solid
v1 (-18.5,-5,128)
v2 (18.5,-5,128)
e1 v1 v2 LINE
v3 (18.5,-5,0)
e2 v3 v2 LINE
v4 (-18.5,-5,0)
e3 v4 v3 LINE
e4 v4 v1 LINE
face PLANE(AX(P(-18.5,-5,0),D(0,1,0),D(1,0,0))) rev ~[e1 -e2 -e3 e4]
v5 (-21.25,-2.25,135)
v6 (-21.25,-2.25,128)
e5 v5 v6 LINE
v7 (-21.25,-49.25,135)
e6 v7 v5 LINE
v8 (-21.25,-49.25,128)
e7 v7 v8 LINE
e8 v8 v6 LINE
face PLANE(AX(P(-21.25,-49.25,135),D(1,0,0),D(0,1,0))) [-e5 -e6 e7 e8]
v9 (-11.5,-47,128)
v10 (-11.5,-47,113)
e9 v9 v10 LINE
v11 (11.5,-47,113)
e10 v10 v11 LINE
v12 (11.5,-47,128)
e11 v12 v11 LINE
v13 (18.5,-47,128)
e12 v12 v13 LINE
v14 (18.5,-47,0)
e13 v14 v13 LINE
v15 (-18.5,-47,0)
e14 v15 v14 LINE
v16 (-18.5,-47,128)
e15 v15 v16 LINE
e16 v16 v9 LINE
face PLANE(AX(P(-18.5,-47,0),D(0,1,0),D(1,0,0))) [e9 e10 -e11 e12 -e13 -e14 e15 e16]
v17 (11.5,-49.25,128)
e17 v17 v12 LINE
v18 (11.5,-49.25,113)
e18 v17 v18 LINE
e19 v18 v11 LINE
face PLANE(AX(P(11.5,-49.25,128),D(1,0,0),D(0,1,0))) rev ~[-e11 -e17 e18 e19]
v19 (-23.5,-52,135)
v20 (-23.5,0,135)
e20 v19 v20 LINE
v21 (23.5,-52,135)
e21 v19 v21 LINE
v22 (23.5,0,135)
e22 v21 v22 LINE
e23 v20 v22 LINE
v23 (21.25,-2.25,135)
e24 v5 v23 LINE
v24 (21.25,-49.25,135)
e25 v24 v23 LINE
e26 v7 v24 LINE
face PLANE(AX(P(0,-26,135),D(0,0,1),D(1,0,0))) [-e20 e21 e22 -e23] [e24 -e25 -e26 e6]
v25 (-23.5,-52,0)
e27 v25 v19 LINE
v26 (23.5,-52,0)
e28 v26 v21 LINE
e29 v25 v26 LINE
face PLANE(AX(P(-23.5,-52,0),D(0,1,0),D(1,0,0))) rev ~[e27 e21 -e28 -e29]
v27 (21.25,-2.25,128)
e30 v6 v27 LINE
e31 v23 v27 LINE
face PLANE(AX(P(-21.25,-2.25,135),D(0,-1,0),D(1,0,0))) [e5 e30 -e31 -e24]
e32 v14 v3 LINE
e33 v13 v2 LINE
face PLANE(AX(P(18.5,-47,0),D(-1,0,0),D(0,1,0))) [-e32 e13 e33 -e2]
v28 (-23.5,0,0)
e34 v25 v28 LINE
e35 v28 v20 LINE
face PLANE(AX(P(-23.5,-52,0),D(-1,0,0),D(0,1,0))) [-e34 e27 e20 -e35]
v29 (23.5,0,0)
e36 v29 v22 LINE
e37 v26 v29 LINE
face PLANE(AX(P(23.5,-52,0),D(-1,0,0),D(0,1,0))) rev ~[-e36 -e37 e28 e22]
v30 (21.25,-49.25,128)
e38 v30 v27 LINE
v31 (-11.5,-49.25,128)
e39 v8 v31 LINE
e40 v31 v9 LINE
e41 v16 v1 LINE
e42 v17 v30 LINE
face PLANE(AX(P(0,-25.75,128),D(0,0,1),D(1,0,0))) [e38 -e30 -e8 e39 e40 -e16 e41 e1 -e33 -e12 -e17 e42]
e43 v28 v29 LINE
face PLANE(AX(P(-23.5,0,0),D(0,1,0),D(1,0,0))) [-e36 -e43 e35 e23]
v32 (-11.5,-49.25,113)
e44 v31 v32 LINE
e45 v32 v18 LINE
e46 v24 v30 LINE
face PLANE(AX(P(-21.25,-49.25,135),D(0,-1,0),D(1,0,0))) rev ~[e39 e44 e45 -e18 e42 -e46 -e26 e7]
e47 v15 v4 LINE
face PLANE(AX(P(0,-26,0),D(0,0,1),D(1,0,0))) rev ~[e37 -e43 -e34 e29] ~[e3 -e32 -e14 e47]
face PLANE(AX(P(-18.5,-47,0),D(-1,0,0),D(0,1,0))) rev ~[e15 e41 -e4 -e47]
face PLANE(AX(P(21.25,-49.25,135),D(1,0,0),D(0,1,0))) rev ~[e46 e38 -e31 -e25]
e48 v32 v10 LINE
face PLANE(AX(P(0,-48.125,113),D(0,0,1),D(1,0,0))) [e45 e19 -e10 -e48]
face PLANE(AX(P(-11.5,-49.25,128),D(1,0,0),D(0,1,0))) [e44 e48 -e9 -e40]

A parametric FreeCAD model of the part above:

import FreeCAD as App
import Part
import Sketcher
from FreeCAD import Vector
Q = App.Units.Quantity


def add_polygon(sketch, points):
    """Adds a closed chain of lines whose ends are joined by coincident constraints."""
    first, n = sketch.GeometryCount, len(points)
    for a, b in zip(points, points[1:] + points[:1]):
        sketch.addGeometry(Part.LineSegment(App.Vector(*a, 0), App.Vector(*b, 0)), False)
    for i in range(n):
        sketch.addConstraint(Sketcher.Constraint("Coincident", first + i, 2, first + (i + 1) % n, 1))

doc = App.newDocument("Part")
body = doc.addObject("PartDesign::Body", "Body")

# Sketch on XY plane
sketch1 = body.newObject("Sketcher::SketchObject", "Sketch")
sketch1.AttachmentSupport = (doc.getObject("XY_Plane"), [""])
sketch1.MapMode = "FlatFace"
add_polygon(sketch1, [(-24, 0), (-24, -52), (24, -52), (24, 0)])  # lines 0-3
add_polygon(sketch1, [(18, -47), (-18, -47), (-18, -5), (18, -5)])  # lines 4-7
sketch1.addConstraint(Sketcher.Constraint("Vertical", 0))
sketch1.addConstraint(Sketcher.Constraint("Horizontal", 1))
sketch1.addConstraint(Sketcher.Constraint("Vertical", 2))
sketch1.addConstraint(Sketcher.Constraint("Horizontal", 3))
sketch1.addConstraint(Sketcher.Constraint("Horizontal", 4))
sketch1.addConstraint(Sketcher.Constraint("Vertical", 5))
sketch1.addConstraint(Sketcher.Constraint("Horizontal", 6))
sketch1.addConstraint(Sketcher.Constraint("Vertical", 7))
sketch1.addConstraint(Sketcher.Constraint("Symmetric", 2, 2, 3, 2, -1, 1))
sketch1.addConstraint(Sketcher.Constraint("DistanceX", 1, 1, 1, 2, Q("47 mm")))
sketch1.addConstraint(Sketcher.Constraint("DistanceX", 4, 2, 4, 1, Q("37 mm")))
sketch1.addConstraint(Sketcher.Constraint("DistanceY", 0, 2, 0, 1, Q("52 mm")))
sketch1.addConstraint(Sketcher.Constraint("DistanceY", 5, 1, 5, 2, Q("42 mm")))
sketch1.addConstraint(Sketcher.Constraint("DistanceY", 4, 2, -1, 1, Q("47 mm")))
sketch1.addConstraint(Sketcher.Constraint("DistanceX", 0, 2, 4, 2, Q("5 mm")))
pad1 = body.newObject("PartDesign::Pad", "Pad")
pad1.Profile = sketch1
pad1.Length = 135

# Sketch on XY plane
sketch2 = body.newObject("Sketcher::SketchObject", "Sketch001")
sketch2.AttachmentSupport = (doc.getObject("XY_Plane"), [""])
sketch2.MapMode = "FlatFace"
sketch2.AttachmentOffset = App.Placement(Vector(0, 0, 135), App.Rotation())
add_polygon(sketch2, [(-21, -2), (-21, -49), (21, -49), (21, -2)])  # lines 0-3
sketch2.addConstraint(Sketcher.Constraint("Vertical", 0))
sketch2.addConstraint(Sketcher.Constraint("Horizontal", 1))
sketch2.addConstraint(Sketcher.Constraint("Vertical", 2))
sketch2.addConstraint(Sketcher.Constraint("Horizontal", 3))
sketch2.addConstraint(Sketcher.Constraint("DistanceY", 0, 2, 0, 1, Q("47 mm")))
sketch2.addConstraint(Sketcher.Constraint("DistanceX", 1, 1, 1, 2, Q("42.5 mm")))
sketch2.addConstraint(Sketcher.Constraint("DistanceX", 0, 2, -1, 1, Q("21.25 mm")))
sketch2.addConstraint(Sketcher.Constraint("DistanceY", 0, 2, -1, 1, Q("49.25 mm")))
pocket1 = body.newObject("PartDesign::Pocket", "Pocket")
pocket1.Profile = sketch2
pocket1.Length = 7

# Sketch on XY plane
sketch3 = body.newObject("Sketcher::SketchObject", "Sketch002")
sketch3.AttachmentSupport = (doc.getObject("XY_Plane"), [""])
sketch3.MapMode = "FlatFace"
sketch3.AttachmentOffset = App.Placement(Vector(0, 0, 128), App.Rotation())
add_polygon(sketch3, [(-11.5, -47), (-11.5, -49.2), (11.5, -49.2), (11.5, -47)])  # lines 0-3
sketch3.addConstraint(Sketcher.Constraint("Vertical", 0))
sketch3.addConstraint(Sketcher.Constraint("Horizontal", 1))
sketch3.addConstraint(Sketcher.Constraint("Vertical", 2))
sketch3.addConstraint(Sketcher.Constraint("Horizontal", 3))
sketch3.addConstraint(Sketcher.Constraint("DistanceX", 1, 1, 1, 2, Q("23 mm")))
sketch3.addConstraint(Sketcher.Constraint("DistanceY", 2, 2, -1, 1, Q("47 mm")))
sketch3.addConstraint(Sketcher.Constraint("DistanceY", 0, 2, 0, 1, Q("2.25 mm")))
sketch3.addConstraint(Sketcher.Constraint("DistanceX", 0, 2, -1, 1, Q("11.5 mm")))
pocket2 = body.newObject("PartDesign::Pocket", "Pocket001")
pocket2.Profile = sketch3
pocket2.Length = 15

doc.recompute()
